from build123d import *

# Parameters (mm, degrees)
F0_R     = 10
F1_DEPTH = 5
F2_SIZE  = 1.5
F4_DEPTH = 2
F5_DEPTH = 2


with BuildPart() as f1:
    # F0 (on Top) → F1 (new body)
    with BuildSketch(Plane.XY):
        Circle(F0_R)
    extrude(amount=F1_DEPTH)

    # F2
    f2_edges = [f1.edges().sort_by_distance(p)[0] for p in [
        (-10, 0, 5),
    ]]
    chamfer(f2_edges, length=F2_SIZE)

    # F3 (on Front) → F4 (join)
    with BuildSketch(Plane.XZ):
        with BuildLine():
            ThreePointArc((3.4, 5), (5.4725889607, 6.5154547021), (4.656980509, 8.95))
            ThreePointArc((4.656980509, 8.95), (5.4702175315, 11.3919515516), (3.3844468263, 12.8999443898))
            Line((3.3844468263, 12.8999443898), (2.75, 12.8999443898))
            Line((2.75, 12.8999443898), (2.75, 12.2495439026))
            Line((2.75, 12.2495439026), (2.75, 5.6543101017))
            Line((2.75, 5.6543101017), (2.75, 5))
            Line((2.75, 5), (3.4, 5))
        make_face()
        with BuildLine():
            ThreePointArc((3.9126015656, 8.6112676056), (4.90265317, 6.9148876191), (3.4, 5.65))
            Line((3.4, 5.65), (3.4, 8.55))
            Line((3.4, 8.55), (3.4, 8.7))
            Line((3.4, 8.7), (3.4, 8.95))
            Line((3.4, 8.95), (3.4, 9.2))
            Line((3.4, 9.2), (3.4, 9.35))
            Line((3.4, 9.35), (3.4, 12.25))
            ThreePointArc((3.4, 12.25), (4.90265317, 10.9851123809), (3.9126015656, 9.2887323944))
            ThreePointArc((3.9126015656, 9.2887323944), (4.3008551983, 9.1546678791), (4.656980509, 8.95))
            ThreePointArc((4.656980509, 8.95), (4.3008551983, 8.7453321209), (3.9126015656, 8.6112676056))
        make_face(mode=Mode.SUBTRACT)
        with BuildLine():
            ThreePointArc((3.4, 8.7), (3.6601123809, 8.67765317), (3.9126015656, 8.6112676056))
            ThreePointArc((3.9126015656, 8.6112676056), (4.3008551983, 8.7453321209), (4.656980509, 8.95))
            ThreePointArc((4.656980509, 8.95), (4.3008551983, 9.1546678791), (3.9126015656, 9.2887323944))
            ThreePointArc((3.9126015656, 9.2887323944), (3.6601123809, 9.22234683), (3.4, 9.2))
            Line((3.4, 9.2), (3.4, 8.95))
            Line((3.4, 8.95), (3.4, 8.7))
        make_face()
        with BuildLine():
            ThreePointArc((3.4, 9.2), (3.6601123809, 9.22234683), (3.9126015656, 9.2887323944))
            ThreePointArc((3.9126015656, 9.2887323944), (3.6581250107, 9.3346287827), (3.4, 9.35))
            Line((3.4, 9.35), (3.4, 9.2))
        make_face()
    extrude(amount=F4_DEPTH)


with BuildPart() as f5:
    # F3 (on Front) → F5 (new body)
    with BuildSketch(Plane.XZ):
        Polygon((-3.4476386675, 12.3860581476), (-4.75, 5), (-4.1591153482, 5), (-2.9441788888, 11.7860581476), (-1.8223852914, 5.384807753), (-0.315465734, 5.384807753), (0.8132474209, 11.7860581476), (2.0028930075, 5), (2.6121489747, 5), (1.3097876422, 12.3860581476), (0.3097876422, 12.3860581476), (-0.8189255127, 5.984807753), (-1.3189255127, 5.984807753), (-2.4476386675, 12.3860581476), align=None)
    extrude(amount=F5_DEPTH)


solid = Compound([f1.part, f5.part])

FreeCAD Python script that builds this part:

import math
import FreeCAD as App
import Part
import Sketcher
from FreeCAD import Vector
Q = App.Units.Quantity


def edges_at(feature, points):
    """Names of the edges that pass closest to the given points."""
    edges = feature.Shape.Edges
    near = lambda p: min(range(len(edges)), key=lambda i: edges[i].distToShape(Part.Vertex(*p))[0])
    return sorted({f"Edge{near(p) + 1}" for p in points})

doc = App.newDocument("Part")
params = doc.addObject("Spreadsheet::Sheet", "Params")
for row, (alias, value) in enumerate([
    ("sketch1_diameter", "20 mm"),
    ("pad1_length", "5 mm"),
    ("chamfer_size", "1.5 mm"),
    ("sketch2_height", "2.9 mm"),
    ("sketch2_width", "0.65 mm"),
    ("pad2_length", "2 mm"),
    ("sketch3_width", "1 mm"),
    ("sketch3_width2", "0.5 mm"),
    ("sketch3_length", "7.5 mm"),
    ("sketch3_length2", "6.5 mm"),
    ("pad3_length", "2 mm"),
], start=1):
    params.set(f"A{row}", alias)
    params.set(f"B{row}", "=" + value)
    params.setAlias(f"B{row}", alias)

body = doc.addObject("PartDesign::Body", "Body")

# Sketch on XY plane
sketch1 = body.newObject("Sketcher::SketchObject", "Sketch")
sketch1.AttachmentSupport = (doc.getObject("XY_Plane"), [""])
sketch1.MapMode = "FlatFace"
sketch1.addGeometry(Part.Circle(Vector(0, 0, 0), Vector(0, 0, 1), 10), False)
sketch1.addConstraint([
    Sketcher.Constraint("Coincident", 0, 3, -1, 1),
    Sketcher.Constraint("Diameter", 0, 20.0),
])
sketch1.setExpression("Constraints[1]", "Params.sketch1_diameter")
pad1 = body.newObject("PartDesign::Pad", "Pad")
pad1.Profile = sketch1
pad1.setExpression("Length", "Params.pad1_length")
doc.recompute()

chamfer = body.newObject("PartDesign::Chamfer", "Chamfer")
chamfer.Base = (pad1, edges_at(pad1, [(-10, 0, 5)]))
chamfer.setExpression("Size", "Params.chamfer_size")

# Sketch on XZ plane
sketch2 = body.newObject("Sketcher::SketchObject", "Sketch001")
sketch2.AttachmentSupport = (doc.getObject("XZ_Plane"), [""])
sketch2.MapMode = "FlatFace"
sketch2.addGeometry([
    Part.LineSegment(Vector(2.8, 12.9, 0), Vector(2.8, 5, 0)),  # 0
    Part.LineSegment(Vector(2.8, 5, 0), Vector(3.4, 5, 0)),  # 1
    Part.ArcOfCircle(Part.Circle(Vector(3.4, 7.2, 0), Vector(0, 0, 1), 2.2), math.radians(-90), math.radians(55)),  # 2
    Part.ArcOfCircle(Part.Circle(Vector(3.4, 10.7, 0), Vector(0, 0, 1), 2.2), math.radians(-55), math.radians(90)),  # 3
    Part.LineSegment(Vector(3.4, 12.9, 0), Vector(2.8, 12.9, 0)),  # 4
    Part.ArcOfCircle(Part.Circle(Vector(3.4, 10.7, 0), Vector(0, 0, 1), 1.5), math.radians(-70), math.radians(90)),  # 5
    Part.ArcOfCircle(Part.Circle(Vector(3.4, 7.2, 0), Vector(0, 0, 1), 2.2), math.radians(76.37), math.radians(90)),  # 6
    Part.LineSegment(Vector(3.4, 9.3, 0), Vector(3.4, 12.2, 0)),  # 7
    Part.LineSegment(Vector(3.4, 5.7, 0), Vector(3.4, 8.7, 0)),  # 8
    Part.ArcOfCircle(Part.Circle(Vector(3.4, 7.2, 0), Vector(0, 0, 1), 1.5), math.radians(70.36), math.radians(90)),  # 9
    Part.ArcOfCircle(Part.Circle(Vector(3.4, 7.2, 0), Vector(0, 0, 1), 1.5), math.radians(-90), math.radians(70)),  # 10
], False)
sketch2.addConstraint([
    Sketcher.Constraint("Coincident", 0, 2, 1, 1),
    Sketcher.Constraint("Tangent", 1, 2, 2, 1),
    Sketcher.Constraint("Coincident", 2, 2, 3, 1),
    Sketcher.Constraint("Coincident", 3, 2, 4, 1),
    Sketcher.Constraint("Coincident", 4, 2, 0, 1),
    Sketcher.Constraint("Coincident", 5, 1, 6, 1),
    Sketcher.Constraint("Coincident", 6, 2, 7, 1),
    Sketcher.Constraint("Coincident", 7, 2, 5, 2),
    Sketcher.Constraint("Coincident", 8, 2, 9, 2),
    Sketcher.Constraint("Tangent", 9, 1, 10, 2),
    Sketcher.Constraint("Coincident", 10, 1, 8, 1),
    Sketcher.Constraint("Vertical", 0),
    Sketcher.Constraint("Horizontal", 1),
    Sketcher.Constraint("Horizontal", 4),
    Sketcher.Constraint("Vertical", 7),
    Sketcher.Constraint("Vertical", 8),
    Sketcher.Constraint("Coincident", 5, 3, 3, 3),
    Sketcher.Constraint("Coincident", 6, 3, 2, 3),
    Sketcher.Constraint("Coincident", 9, 3, 2, 3),
    Sketcher.Constraint("Equal", 2, 3),
    Sketcher.Constraint("Equal", 3, 6),
    Sketcher.Constraint("Equal", 5, 9),
    Sketcher.Constraint("Equal", 9, 10),
    Sketcher.Constraint("Vertical", 2, 3, 3, 3),
    Sketcher.Constraint("Vertical", 1, 2, 6, 2),
    Sketcher.Constraint("Vertical", 7, 2, 8, 2),
    Sketcher.Constraint("Vertical", 5, 1, 9, 1),
    Sketcher.Constraint("DistanceY", 7, 1, 7, 2, 2.9),
    Sketcher.Constraint("DistanceY", -1, 1, 0, 2, 5.0),
    Sketcher.Constraint("Radius", 2, 2.175),
    Sketcher.Constraint("Radius", 5, 1.525),
    Sketcher.Constraint("DistanceX", 1, 1, 1, 2, 0.65),
    Sketcher.Constraint("DistanceX", -1, 1, 2, 3, 3.4),
    Sketcher.Constraint("DistanceX", 4, 2, 4, 1, 0.634447),
])
sketch2.setExpression("Constraints[27]", "Params.sketch2_height")
sketch2.setExpression("Constraints[31]", "Params.sketch2_width")
pad2 = body.newObject("PartDesign::Pad", "Pad001")
pad2.Profile = sketch2
pad2.setExpression("Length", "Params.pad2_length")
body2 = doc.addObject("PartDesign::Body", "Body001")

# Sketch on XZ plane
sketch3 = body2.newObject("Sketcher::SketchObject", "Sketch002")
sketch3.AttachmentSupport = (doc.getObject("XZ_Plane001"), [""])
sketch3.MapMode = "FlatFace"
sketch3.addGeometry([
    Part.LineSegment(Vector(-3.45, 12.39, 0), Vector(-4.75, 5, 0)),  # 0
    Part.LineSegment(Vector(-4.75, 5, 0), Vector(-4.16, 5, 0)),  # 1
    Part.LineSegment(Vector(-4.16, 5, 0), Vector(-2.94, 11.79, 0)),  # 2
    Part.LineSegment(Vector(-2.94, 11.79, 0), Vector(-1.82, 5.38, 0)),  # 3
    Part.LineSegment(Vector(-1.82, 5.38, 0), Vector(-0.32, 5.38, 0)),  # 4
    Part.LineSegment(Vector(-0.32, 5.38, 0), Vector(0.81, 11.79, 0)),  # 5
    Part.LineSegment(Vector(0.81, 11.79, 0), Vector(2, 5, 0)),  # 6
    Part.LineSegment(Vector(2, 5, 0), Vector(2.61, 5, 0)),  # 7
    Part.LineSegment(Vector(2.61, 5, 0), Vector(1.31, 12.39, 0)),  # 8
    Part.LineSegment(Vector(1.31, 12.39, 0), Vector(0.31, 12.39, 0)),  # 9
    Part.LineSegment(Vector(0.31, 12.39, 0), Vector(-0.82, 5.98, 0)),  # 10
    Part.LineSegment(Vector(-0.82, 5.98, 0), Vector(-1.32, 5.98, 0)),  # 11
    Part.LineSegment(Vector(-1.32, 5.98, 0), Vector(-2.45, 12.39, 0)),  # 12
    Part.LineSegment(Vector(-2.45, 12.39, 0), Vector(-3.45, 12.39, 0)),  # 13
], False)
sketch3.addConstraint([
    Sketcher.Constraint("Coincident", 0, 2, 1, 1),
    Sketcher.Constraint("Coincident", 1, 2, 2, 1),
    Sketcher.Constraint("Coincident", 2, 2, 3, 1),
    Sketcher.Constraint("Coincident", 3, 2, 4, 1),
    Sketcher.Constraint("Coincident", 4, 2, 5, 1),
    Sketcher.Constraint("Coincident", 5, 2, 6, 1),
    Sketcher.Constraint("Coincident", 6, 2, 7, 1),
    Sketcher.Constraint("Coincident", 7, 2, 8, 1),
    Sketcher.Constraint("Coincident", 8, 2, 9, 1),
    Sketcher.Constraint("Coincident", 9, 2, 10, 1),
    Sketcher.Constraint("Coincident", 10, 2, 11, 1),
    Sketcher.Constraint("Coincident", 11, 2, 12, 1),
    Sketcher.Constraint("Coincident", 12, 2, 13, 1),
    Sketcher.Constraint("Coincident", 13, 2, 0, 1),
    Sketcher.Constraint("Horizontal", 1),
    Sketcher.Constraint("Horizontal", 4),
    Sketcher.Constraint("Horizontal", 7),
    Sketcher.Constraint("Horizontal", 9),
    Sketcher.Constraint("Horizontal", 11),
    Sketcher.Constraint("Horizontal", 13),
    Sketcher.Constraint("Parallel", 0, 5),
    Sketcher.Constraint("Parallel", 5, 10),
    Sketcher.Constraint("Parallel", 8, 12),
    Sketcher.Constraint("Horizontal", 2, 2, 5, 2),
    Sketcher.Constraint("Horizontal", 1, 2, 6, 2),
    Sketcher.Constraint("Horizontal", 9, 2, 12, 2),
    Sketcher.Constraint("Equal", 9, 13),
    Sketcher.Constraint("Equal", 0, 8),
    Sketcher.Constraint("Equal", 5, 10),
    Sketcher.Constraint("DistanceX", 9, 2, 9, 1, 1.0),
    Sketcher.Constraint("Angle", 0, Q("-100 deg")),
    Sketcher.Constraint("DistanceX", 11, 2, 11, 1, 0.5),
    Sketcher.Constraint("DistanceY", -1, 1, 0, 2, 5.0),
    Sketcher.Constraint("Distance", 0, 7.5),
    Sketcher.Constraint("Distance", 5, 6.5),
    Sketcher.Constraint("DistanceY", 5, 2, 8, 2, 0.6),
    Sketcher.Constraint("DistanceX", 0, 2, -1, 1, 4.75),
    Sketcher.Constraint("DistanceX", 4, 1, 4, 2, 1.50692),
    Sketcher.Constraint("DistanceX", 5, 2, 7, 2, 1.798902),
    Sketcher.Constraint("DistanceX", 1, 1, 1, 2, 0.590885),
    Sketcher.Constraint("DistanceX", 7, 1, 7, 2, 0.609256),
    Sketcher.Constraint("DistanceX", 2, 2, -1, 1, 2.944179),
])
sketch3.setExpression("Constraints[29]", "Params.sketch3_width")
sketch3.setExpression("Constraints[31]", "Params.sketch3_width2")
sketch3.setExpression("Constraints[33]", "Params.sketch3_length")
sketch3.setExpression("Constraints[34]", "Params.sketch3_length2")
pad3 = body2.newObject("PartDesign::Pad", "Pad002")
pad3.Profile = sketch3
pad3.setExpression("Length", "Params.pad3_length")

doc.recompute()
